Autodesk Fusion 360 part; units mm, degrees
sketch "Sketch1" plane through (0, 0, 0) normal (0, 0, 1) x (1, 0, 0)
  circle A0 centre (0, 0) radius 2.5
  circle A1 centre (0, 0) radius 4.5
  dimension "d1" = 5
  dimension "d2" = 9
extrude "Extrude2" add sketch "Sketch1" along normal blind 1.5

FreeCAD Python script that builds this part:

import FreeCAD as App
import Part
import Sketcher
from FreeCAD import Vector

doc = App.newDocument("Part")
body = doc.addObject("PartDesign::Body", "Body")

sketch1 = body.newObject("Sketcher::SketchObject", "Sketch")
sketch1.AttachmentSupport = (doc.getObject("XY_Plane"), [""])
sketch1.MapMode = "FlatFace"
sketch1.addGeometry(Part.Circle(Vector(0, 0, 0), Vector(0, 0, 1), 4.5), False)
sketch1.addGeometry(Part.Circle(Vector(0, 0, 0), Vector(0, 0, 1), 2.5), False)
sketch1.addConstraint(Sketcher.Constraint("Coincident", 0, 3, -1, 1))
sketch1.addConstraint(Sketcher.Constraint("Coincident", 1, 3, -1, 1))
sketch1.addConstraint(Sketcher.Constraint("Diameter", 0, 9.0))
sketch1.addConstraint(Sketcher.Constraint("Diameter", 1, 5.0))
pad1 = body.newObject("PartDesign::Pad", "Pad")
pad1.Profile = sketch1
pad1.Length = 1.5

doc.recompute()
